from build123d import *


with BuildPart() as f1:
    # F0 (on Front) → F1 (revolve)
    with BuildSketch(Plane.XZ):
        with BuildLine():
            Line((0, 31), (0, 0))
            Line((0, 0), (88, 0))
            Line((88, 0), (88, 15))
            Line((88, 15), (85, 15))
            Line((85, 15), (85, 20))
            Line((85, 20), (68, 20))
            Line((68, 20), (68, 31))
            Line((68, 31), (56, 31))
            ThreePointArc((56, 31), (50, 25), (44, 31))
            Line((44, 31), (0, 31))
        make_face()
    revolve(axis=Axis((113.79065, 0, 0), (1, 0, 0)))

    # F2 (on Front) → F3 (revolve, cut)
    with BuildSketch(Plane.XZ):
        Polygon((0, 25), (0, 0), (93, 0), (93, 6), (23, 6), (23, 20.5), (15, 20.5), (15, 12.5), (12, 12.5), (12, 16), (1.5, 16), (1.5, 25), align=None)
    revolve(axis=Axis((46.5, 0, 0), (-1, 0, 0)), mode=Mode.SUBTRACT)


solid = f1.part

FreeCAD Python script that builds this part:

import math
import FreeCAD as App
import Part
import Sketcher
Q = App.Units.Quantity

doc = App.newDocument("Part")
body = doc.addObject("PartDesign::Body", "Body")

# Sketch on XZ plane
sketch1 = body.newObject("Sketcher::SketchObject", "Sketch")
sketch1.AttachmentSupport = (doc.getObject("XZ_Plane"), [""])
sketch1.MapMode = "FlatFace"
sketch1.addGeometry(Part.LineSegment(App.Vector(0, 31, 0), App.Vector(0, 0, 0)), False)
sketch1.addGeometry(Part.LineSegment(App.Vector(0, 0, 0), App.Vector(88, 0, 0)), False)
sketch1.addGeometry(Part.LineSegment(App.Vector(88, 0, 0), App.Vector(88, 15, 0)), False)
sketch1.addGeometry(Part.LineSegment(App.Vector(88, 15, 0), App.Vector(85, 15, 0)), False)
sketch1.addGeometry(Part.LineSegment(App.Vector(85, 15, 0), App.Vector(85, 20, 0)), False)
sketch1.addGeometry(Part.LineSegment(App.Vector(85, 20, 0), App.Vector(68, 20, 0)), False)
sketch1.addGeometry(Part.LineSegment(App.Vector(68, 20, 0), App.Vector(68, 31, 0)), False)
sketch1.addGeometry(Part.LineSegment(App.Vector(68, 31, 0), App.Vector(56, 31, 0)), False)
sketch1.addGeometry(Part.ArcOfCircle(Part.Circle(App.Vector(50, 31, 0), App.Vector(0, 0, 1), 6), math.radians(180), math.radians(360)), False)
sketch1.addGeometry(Part.LineSegment(App.Vector(44, 31, 0), App.Vector(0, 31, 0)), False)
sketch1.addConstraint(Sketcher.Constraint("Coincident", 0, 2, 1, 1))
sketch1.addConstraint(Sketcher.Constraint("Coincident", 1, 2, 2, 1))
sketch1.addConstraint(Sketcher.Constraint("Coincident", 2, 2, 3, 1))
sketch1.addConstraint(Sketcher.Constraint("Coincident", 3, 2, 4, 1))
sketch1.addConstraint(Sketcher.Constraint("Coincident", 4, 2, 5, 1))
sketch1.addConstraint(Sketcher.Constraint("Coincident", 5, 2, 6, 1))
sketch1.addConstraint(Sketcher.Constraint("Coincident", 6, 2, 7, 1))
sketch1.addConstraint(Sketcher.Constraint("Coincident", 7, 2, 8, 2))
sketch1.addConstraint(Sketcher.Constraint("Coincident", 8, 1, 9, 1))
sketch1.addConstraint(Sketcher.Constraint("Coincident", 9, 2, 0, 1))
sketch1.addConstraint(Sketcher.Constraint("Vertical", 0))
sketch1.addConstraint(Sketcher.Constraint("Horizontal", 1))
sketch1.addConstraint(Sketcher.Constraint("Vertical", 2))
sketch1.addConstraint(Sketcher.Constraint("Horizontal", 3))
sketch1.addConstraint(Sketcher.Constraint("Vertical", 4))
sketch1.addConstraint(Sketcher.Constraint("Horizontal", 5))
sketch1.addConstraint(Sketcher.Constraint("Vertical", 6))
sketch1.addConstraint(Sketcher.Constraint("Horizontal", 7))
sketch1.addConstraint(Sketcher.Constraint("Horizontal", 9))
sketch1.addConstraint(Sketcher.Constraint("Coincident", 0, 2, -1, 1))
sketch1.addConstraint(Sketcher.Constraint("Horizontal", 8, 3, 6, 2))
sketch1.addConstraint(Sketcher.Constraint("Horizontal", 7, 2, 8, 1))
sketch1.addConstraint(Sketcher.Constraint("Radius", 8, Q("6 mm")))
sketch1.addConstraint(Sketcher.Constraint("DistanceX", 1, 1, 1, 2, Q("88 mm")))
sketch1.addConstraint(Sketcher.Constraint("DistanceX", 3, 2, 3, 1, Q("3 mm")))
sketch1.addConstraint(Sketcher.Constraint("DistanceX", 5, 2, 5, 1, Q("17 mm")))
sketch1.addConstraint(Sketcher.Constraint("DistanceX", 7, 2, 7, 1, Q("12 mm")))
sketch1.addConstraint(Sketcher.Constraint("DistanceY", 0, 2, 0, 1, Q("31 mm")))
sketch1.addConstraint(Sketcher.Constraint("DistanceY", 2, 1, 2, 2, Q("15 mm")))
sketch1.addConstraint(Sketcher.Constraint("DistanceY", 4, 1, 4, 2, Q("5 mm")))
revolution = body.newObject("PartDesign::Revolution", "Revolution")
revolution.Profile = sketch1
revolution.ReferenceAxis = (sketch1, ["H_Axis"])
revolution.Angle = 360

# Sketch on XZ plane
sketch2 = body.newObject("Sketcher::SketchObject", "Sketch001")
sketch2.AttachmentSupport = (doc.getObject("XZ_Plane"), [""])
sketch2.MapMode = "FlatFace"
sketch2.addGeometry(Part.LineSegment(App.Vector(0, 25, 0), App.Vector(0, 0, 0)), False)
sketch2.addGeometry(Part.LineSegment(App.Vector(0, 0, 0), App.Vector(93, 0, 0)), False)
sketch2.addGeometry(Part.LineSegment(App.Vector(93, 0, 0), App.Vector(93, 6, 0)), False)
sketch2.addGeometry(Part.LineSegment(App.Vector(93, 6, 0), App.Vector(23, 6, 0)), False)
sketch2.addGeometry(Part.LineSegment(App.Vector(23, 6, 0), App.Vector(23, 20.5, 0)), False)
sketch2.addGeometry(Part.LineSegment(App.Vector(23, 20.5, 0), App.Vector(15, 20.5, 0)), False)
sketch2.addGeometry(Part.LineSegment(App.Vector(15, 20.5, 0), App.Vector(15, 12.5, 0)), False)
sketch2.addGeometry(Part.LineSegment(App.Vector(15, 12.5, 0), App.Vector(12, 12.5, 0)), False)
sketch2.addGeometry(Part.LineSegment(App.Vector(12, 12.5, 0), App.Vector(12, 16, 0)), False)
sketch2.addGeometry(Part.LineSegment(App.Vector(12, 16, 0), App.Vector(1.5, 16, 0)), False)
sketch2.addGeometry(Part.LineSegment(App.Vector(1.5, 16, 0), App.Vector(1.5, 25, 0)), False)
sketch2.addGeometry(Part.LineSegment(App.Vector(1.5, 25, 0), App.Vector(0, 25, 0)), False)
sketch2.addConstraint(Sketcher.Constraint("Coincident", 0, 2, 1, 1))
sketch2.addConstraint(Sketcher.Constraint("Coincident", 1, 2, 2, 1))
sketch2.addConstraint(Sketcher.Constraint("Coincident", 2, 2, 3, 1))
sketch2.addConstraint(Sketcher.Constraint("Coincident", 3, 2, 4, 1))
sketch2.addConstraint(Sketcher.Constraint("Coincident", 4, 2, 5, 1))
sketch2.addConstraint(Sketcher.Constraint("Coincident", 5, 2, 6, 1))
sketch2.addConstraint(Sketcher.Constraint("Coincident", 6, 2, 7, 1))
sketch2.addConstraint(Sketcher.Constraint("Coincident", 7, 2, 8, 1))
sketch2.addConstraint(Sketcher.Constraint("Coincident", 8, 2, 9, 1))
sketch2.addConstraint(Sketcher.Constraint("Coincident", 9, 2, 10, 1))
sketch2.addConstraint(Sketcher.Constraint("Coincident", 10, 2, 11, 1))
sketch2.addConstraint(Sketcher.Constraint("Coincident", 11, 2, 0, 1))
sketch2.addConstraint(Sketcher.Constraint("Vertical", 0))
sketch2.addConstraint(Sketcher.Constraint("Horizontal", 1))
sketch2.addConstraint(Sketcher.Constraint("Vertical", 2))
sketch2.addConstraint(Sketcher.Constraint("Horizontal", 3))
sketch2.addConstraint(Sketcher.Constraint("Vertical", 4))
sketch2.addConstraint(Sketcher.Constraint("Horizontal", 5))
sketch2.addConstraint(Sketcher.Constraint("Vertical", 6))
sketch2.addConstraint(Sketcher.Constraint("Horizontal", 7))
sketch2.addConstraint(Sketcher.Constraint("Vertical", 8))
sketch2.addConstraint(Sketcher.Constraint("Horizontal", 9))
sketch2.addConstraint(Sketcher.Constraint("Vertical", 10))
sketch2.addConstraint(Sketcher.Constraint("Horizontal", 11))
sketch2.addConstraint(Sketcher.Constraint("Coincident", 0, 2, -1, 1))
sketch2.addConstraint(Sketcher.Constraint("Equal", 5, 6))
sketch2.addConstraint(Sketcher.Constraint("DistanceX", 1, 1, 1, 2, Q("93 mm")))
sketch2.addConstraint(Sketcher.Constraint("DistanceX", 3, 2, 3, 1, Q("70 mm")))
sketch2.addConstraint(Sketcher.Constraint("DistanceX", 5, 2, 5, 1, Q("8 mm")))
sketch2.addConstraint(Sketcher.Constraint("DistanceX", 7, 2, 7, 1, Q("3 mm")))
sketch2.addConstraint(Sketcher.Constraint("DistanceY", 0, 2, 0, 1, Q("25 mm")))
sketch2.addConstraint(Sketcher.Constraint("DistanceY", 2, 1, 2, 2, Q("6 mm")))
sketch2.addConstraint(Sketcher.Constraint("DistanceY", 10, 1, 10, 2, Q("9 mm")))
sketch2.addConstraint(Sketcher.Constraint("DistanceX", 9, 2, 9, 1, Q("10.5 mm")))
sketch2.addConstraint(Sketcher.Constraint("DistanceY", 4, 1, 4, 2, Q("14.5 mm")))
groove = body.newObject("PartDesign::Groove", "Groove")
groove.Profile = sketch2
groove.ReferenceAxis = (sketch2, ["H_Axis"])
groove.Angle = 360

doc.recompute()
